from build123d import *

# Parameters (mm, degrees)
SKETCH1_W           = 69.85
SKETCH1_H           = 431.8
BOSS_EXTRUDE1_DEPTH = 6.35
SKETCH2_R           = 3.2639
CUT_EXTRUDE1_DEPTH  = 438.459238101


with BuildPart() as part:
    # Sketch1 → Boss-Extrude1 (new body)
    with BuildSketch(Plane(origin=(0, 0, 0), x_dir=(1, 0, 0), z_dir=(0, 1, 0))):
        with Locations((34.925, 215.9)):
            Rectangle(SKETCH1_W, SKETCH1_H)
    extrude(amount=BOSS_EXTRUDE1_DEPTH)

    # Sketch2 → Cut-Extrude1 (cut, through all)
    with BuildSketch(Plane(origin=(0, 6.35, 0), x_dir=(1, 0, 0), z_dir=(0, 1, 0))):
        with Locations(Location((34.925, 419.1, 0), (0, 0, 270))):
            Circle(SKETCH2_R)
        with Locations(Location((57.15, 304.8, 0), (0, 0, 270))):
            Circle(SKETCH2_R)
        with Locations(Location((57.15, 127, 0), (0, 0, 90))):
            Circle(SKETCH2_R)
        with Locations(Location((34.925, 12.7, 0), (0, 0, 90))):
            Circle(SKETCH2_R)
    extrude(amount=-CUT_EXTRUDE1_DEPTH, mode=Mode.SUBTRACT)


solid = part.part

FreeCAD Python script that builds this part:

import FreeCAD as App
import Part
import Sketcher

V = App.Vector
Q = App.Units.Quantity


def add_polygon(sketch, points):
    """Adds a closed chain of lines whose ends are joined by coincident constraints."""
    first, n = sketch.GeometryCount, len(points)
    for a, b in zip(points, points[1:] + points[:1]):
        sketch.addGeometry(Part.LineSegment(App.Vector(*a, 0), App.Vector(*b, 0)), False)
    for i in range(n):
        sketch.addConstraint(Sketcher.Constraint("Coincident", first + i, 2, first + (i + 1) % n, 1))

doc = App.newDocument("Part")
body = doc.addObject("PartDesign::Body", "Body")

sketch1 = doc.addObject("Sketcher::SketchObject", "Sketch")
body.addObject(sketch1)
sketch1.AttachmentSupport = (doc.XZ_Plane, [""])
sketch1.MapMode = "FlatFace"
add_polygon(sketch1, [(0, -432), (0, 0), (70, 0), (70, -432)])
sketch1.addConstraint([
    Sketcher.Constraint("Vertical", 0),
    Sketcher.Constraint("Horizontal", 1),
    Sketcher.Constraint("Vertical", 2),
    Sketcher.Constraint("Horizontal", 3),
    Sketcher.Constraint("Coincident", 0, 2, -1, 1),
    Sketcher.Constraint("DistanceY", 0, 1, 0, 2, Q("17 in")),
    Sketcher.Constraint("DistanceX", 1, 1, 1, 2, Q("2.75 in")),
])
pad1 = doc.addObject("PartDesign::Pad", "Pad")
body.addObject(pad1)
pad1.Profile = sketch1
pad1.Length = Q("0.25 in")
pad1.Reversed = True

sketch2 = doc.addObject("Sketcher::SketchObject", "Sketch001")
body.addObject(sketch2)
sketch2.AttachmentSupport = (doc.XZ_Plane, [""])
sketch2.MapMode = "FlatFace"
sketch2.AttachmentOffset = App.Placement(V(0, 0, -0.25 * 25.4), App.Rotation())
sketch2.addGeometry([
    Part.Circle(V(34.9, -419.1, 0), V(0, 0, 1), 3.3),
    Part.Circle(V(57.1, -304.8, 0), V(0, 0, 1), 3.3),
    Part.Circle(V(57.1, -127, 0), V(0, 0, 1), 3.3),
    Part.Circle(V(34.9, -12.7, 0), V(0, 0, 1), 3.3),
], False)
sketch2.addConstraint([
    Sketcher.Constraint("Equal", 0, 1),
    Sketcher.Constraint("Equal", 1, 2),
    Sketcher.Constraint("Equal", 2, 3),
    Sketcher.Constraint("Vertical", 1, 3, 2, 3),
    Sketcher.Constraint("Vertical", 0, 3, 3, 3),
    Sketcher.Constraint("Diameter", 0, Q("0.257 in")),
    Sketcher.Constraint("DistanceY", 1, 3, -1, 1, Q("12 in")),
    Sketcher.Constraint("DistanceY", 2, 3, -1, 1, Q("5 in")),
    Sketcher.Constraint("DistanceY", 0, 3, 3, 3, Q("16 in")),
    Sketcher.Constraint("DistanceY", 0, 3, -1, 1, Q("16.5 in")),
    Sketcher.Constraint("DistanceX", -1, 1, 1, 3, Q("2.25 in")),
    Sketcher.Constraint("DistanceX", -1, 1, 0, 3, Q("1.375 in")),
])
pocket1 = doc.addObject("PartDesign::Pocket", "Pocket")
body.addObject(pocket1)
pocket1.Profile = sketch2
pocket1.Type = "ThroughAll"
pocket1.Reversed = True

doc.recompute()
